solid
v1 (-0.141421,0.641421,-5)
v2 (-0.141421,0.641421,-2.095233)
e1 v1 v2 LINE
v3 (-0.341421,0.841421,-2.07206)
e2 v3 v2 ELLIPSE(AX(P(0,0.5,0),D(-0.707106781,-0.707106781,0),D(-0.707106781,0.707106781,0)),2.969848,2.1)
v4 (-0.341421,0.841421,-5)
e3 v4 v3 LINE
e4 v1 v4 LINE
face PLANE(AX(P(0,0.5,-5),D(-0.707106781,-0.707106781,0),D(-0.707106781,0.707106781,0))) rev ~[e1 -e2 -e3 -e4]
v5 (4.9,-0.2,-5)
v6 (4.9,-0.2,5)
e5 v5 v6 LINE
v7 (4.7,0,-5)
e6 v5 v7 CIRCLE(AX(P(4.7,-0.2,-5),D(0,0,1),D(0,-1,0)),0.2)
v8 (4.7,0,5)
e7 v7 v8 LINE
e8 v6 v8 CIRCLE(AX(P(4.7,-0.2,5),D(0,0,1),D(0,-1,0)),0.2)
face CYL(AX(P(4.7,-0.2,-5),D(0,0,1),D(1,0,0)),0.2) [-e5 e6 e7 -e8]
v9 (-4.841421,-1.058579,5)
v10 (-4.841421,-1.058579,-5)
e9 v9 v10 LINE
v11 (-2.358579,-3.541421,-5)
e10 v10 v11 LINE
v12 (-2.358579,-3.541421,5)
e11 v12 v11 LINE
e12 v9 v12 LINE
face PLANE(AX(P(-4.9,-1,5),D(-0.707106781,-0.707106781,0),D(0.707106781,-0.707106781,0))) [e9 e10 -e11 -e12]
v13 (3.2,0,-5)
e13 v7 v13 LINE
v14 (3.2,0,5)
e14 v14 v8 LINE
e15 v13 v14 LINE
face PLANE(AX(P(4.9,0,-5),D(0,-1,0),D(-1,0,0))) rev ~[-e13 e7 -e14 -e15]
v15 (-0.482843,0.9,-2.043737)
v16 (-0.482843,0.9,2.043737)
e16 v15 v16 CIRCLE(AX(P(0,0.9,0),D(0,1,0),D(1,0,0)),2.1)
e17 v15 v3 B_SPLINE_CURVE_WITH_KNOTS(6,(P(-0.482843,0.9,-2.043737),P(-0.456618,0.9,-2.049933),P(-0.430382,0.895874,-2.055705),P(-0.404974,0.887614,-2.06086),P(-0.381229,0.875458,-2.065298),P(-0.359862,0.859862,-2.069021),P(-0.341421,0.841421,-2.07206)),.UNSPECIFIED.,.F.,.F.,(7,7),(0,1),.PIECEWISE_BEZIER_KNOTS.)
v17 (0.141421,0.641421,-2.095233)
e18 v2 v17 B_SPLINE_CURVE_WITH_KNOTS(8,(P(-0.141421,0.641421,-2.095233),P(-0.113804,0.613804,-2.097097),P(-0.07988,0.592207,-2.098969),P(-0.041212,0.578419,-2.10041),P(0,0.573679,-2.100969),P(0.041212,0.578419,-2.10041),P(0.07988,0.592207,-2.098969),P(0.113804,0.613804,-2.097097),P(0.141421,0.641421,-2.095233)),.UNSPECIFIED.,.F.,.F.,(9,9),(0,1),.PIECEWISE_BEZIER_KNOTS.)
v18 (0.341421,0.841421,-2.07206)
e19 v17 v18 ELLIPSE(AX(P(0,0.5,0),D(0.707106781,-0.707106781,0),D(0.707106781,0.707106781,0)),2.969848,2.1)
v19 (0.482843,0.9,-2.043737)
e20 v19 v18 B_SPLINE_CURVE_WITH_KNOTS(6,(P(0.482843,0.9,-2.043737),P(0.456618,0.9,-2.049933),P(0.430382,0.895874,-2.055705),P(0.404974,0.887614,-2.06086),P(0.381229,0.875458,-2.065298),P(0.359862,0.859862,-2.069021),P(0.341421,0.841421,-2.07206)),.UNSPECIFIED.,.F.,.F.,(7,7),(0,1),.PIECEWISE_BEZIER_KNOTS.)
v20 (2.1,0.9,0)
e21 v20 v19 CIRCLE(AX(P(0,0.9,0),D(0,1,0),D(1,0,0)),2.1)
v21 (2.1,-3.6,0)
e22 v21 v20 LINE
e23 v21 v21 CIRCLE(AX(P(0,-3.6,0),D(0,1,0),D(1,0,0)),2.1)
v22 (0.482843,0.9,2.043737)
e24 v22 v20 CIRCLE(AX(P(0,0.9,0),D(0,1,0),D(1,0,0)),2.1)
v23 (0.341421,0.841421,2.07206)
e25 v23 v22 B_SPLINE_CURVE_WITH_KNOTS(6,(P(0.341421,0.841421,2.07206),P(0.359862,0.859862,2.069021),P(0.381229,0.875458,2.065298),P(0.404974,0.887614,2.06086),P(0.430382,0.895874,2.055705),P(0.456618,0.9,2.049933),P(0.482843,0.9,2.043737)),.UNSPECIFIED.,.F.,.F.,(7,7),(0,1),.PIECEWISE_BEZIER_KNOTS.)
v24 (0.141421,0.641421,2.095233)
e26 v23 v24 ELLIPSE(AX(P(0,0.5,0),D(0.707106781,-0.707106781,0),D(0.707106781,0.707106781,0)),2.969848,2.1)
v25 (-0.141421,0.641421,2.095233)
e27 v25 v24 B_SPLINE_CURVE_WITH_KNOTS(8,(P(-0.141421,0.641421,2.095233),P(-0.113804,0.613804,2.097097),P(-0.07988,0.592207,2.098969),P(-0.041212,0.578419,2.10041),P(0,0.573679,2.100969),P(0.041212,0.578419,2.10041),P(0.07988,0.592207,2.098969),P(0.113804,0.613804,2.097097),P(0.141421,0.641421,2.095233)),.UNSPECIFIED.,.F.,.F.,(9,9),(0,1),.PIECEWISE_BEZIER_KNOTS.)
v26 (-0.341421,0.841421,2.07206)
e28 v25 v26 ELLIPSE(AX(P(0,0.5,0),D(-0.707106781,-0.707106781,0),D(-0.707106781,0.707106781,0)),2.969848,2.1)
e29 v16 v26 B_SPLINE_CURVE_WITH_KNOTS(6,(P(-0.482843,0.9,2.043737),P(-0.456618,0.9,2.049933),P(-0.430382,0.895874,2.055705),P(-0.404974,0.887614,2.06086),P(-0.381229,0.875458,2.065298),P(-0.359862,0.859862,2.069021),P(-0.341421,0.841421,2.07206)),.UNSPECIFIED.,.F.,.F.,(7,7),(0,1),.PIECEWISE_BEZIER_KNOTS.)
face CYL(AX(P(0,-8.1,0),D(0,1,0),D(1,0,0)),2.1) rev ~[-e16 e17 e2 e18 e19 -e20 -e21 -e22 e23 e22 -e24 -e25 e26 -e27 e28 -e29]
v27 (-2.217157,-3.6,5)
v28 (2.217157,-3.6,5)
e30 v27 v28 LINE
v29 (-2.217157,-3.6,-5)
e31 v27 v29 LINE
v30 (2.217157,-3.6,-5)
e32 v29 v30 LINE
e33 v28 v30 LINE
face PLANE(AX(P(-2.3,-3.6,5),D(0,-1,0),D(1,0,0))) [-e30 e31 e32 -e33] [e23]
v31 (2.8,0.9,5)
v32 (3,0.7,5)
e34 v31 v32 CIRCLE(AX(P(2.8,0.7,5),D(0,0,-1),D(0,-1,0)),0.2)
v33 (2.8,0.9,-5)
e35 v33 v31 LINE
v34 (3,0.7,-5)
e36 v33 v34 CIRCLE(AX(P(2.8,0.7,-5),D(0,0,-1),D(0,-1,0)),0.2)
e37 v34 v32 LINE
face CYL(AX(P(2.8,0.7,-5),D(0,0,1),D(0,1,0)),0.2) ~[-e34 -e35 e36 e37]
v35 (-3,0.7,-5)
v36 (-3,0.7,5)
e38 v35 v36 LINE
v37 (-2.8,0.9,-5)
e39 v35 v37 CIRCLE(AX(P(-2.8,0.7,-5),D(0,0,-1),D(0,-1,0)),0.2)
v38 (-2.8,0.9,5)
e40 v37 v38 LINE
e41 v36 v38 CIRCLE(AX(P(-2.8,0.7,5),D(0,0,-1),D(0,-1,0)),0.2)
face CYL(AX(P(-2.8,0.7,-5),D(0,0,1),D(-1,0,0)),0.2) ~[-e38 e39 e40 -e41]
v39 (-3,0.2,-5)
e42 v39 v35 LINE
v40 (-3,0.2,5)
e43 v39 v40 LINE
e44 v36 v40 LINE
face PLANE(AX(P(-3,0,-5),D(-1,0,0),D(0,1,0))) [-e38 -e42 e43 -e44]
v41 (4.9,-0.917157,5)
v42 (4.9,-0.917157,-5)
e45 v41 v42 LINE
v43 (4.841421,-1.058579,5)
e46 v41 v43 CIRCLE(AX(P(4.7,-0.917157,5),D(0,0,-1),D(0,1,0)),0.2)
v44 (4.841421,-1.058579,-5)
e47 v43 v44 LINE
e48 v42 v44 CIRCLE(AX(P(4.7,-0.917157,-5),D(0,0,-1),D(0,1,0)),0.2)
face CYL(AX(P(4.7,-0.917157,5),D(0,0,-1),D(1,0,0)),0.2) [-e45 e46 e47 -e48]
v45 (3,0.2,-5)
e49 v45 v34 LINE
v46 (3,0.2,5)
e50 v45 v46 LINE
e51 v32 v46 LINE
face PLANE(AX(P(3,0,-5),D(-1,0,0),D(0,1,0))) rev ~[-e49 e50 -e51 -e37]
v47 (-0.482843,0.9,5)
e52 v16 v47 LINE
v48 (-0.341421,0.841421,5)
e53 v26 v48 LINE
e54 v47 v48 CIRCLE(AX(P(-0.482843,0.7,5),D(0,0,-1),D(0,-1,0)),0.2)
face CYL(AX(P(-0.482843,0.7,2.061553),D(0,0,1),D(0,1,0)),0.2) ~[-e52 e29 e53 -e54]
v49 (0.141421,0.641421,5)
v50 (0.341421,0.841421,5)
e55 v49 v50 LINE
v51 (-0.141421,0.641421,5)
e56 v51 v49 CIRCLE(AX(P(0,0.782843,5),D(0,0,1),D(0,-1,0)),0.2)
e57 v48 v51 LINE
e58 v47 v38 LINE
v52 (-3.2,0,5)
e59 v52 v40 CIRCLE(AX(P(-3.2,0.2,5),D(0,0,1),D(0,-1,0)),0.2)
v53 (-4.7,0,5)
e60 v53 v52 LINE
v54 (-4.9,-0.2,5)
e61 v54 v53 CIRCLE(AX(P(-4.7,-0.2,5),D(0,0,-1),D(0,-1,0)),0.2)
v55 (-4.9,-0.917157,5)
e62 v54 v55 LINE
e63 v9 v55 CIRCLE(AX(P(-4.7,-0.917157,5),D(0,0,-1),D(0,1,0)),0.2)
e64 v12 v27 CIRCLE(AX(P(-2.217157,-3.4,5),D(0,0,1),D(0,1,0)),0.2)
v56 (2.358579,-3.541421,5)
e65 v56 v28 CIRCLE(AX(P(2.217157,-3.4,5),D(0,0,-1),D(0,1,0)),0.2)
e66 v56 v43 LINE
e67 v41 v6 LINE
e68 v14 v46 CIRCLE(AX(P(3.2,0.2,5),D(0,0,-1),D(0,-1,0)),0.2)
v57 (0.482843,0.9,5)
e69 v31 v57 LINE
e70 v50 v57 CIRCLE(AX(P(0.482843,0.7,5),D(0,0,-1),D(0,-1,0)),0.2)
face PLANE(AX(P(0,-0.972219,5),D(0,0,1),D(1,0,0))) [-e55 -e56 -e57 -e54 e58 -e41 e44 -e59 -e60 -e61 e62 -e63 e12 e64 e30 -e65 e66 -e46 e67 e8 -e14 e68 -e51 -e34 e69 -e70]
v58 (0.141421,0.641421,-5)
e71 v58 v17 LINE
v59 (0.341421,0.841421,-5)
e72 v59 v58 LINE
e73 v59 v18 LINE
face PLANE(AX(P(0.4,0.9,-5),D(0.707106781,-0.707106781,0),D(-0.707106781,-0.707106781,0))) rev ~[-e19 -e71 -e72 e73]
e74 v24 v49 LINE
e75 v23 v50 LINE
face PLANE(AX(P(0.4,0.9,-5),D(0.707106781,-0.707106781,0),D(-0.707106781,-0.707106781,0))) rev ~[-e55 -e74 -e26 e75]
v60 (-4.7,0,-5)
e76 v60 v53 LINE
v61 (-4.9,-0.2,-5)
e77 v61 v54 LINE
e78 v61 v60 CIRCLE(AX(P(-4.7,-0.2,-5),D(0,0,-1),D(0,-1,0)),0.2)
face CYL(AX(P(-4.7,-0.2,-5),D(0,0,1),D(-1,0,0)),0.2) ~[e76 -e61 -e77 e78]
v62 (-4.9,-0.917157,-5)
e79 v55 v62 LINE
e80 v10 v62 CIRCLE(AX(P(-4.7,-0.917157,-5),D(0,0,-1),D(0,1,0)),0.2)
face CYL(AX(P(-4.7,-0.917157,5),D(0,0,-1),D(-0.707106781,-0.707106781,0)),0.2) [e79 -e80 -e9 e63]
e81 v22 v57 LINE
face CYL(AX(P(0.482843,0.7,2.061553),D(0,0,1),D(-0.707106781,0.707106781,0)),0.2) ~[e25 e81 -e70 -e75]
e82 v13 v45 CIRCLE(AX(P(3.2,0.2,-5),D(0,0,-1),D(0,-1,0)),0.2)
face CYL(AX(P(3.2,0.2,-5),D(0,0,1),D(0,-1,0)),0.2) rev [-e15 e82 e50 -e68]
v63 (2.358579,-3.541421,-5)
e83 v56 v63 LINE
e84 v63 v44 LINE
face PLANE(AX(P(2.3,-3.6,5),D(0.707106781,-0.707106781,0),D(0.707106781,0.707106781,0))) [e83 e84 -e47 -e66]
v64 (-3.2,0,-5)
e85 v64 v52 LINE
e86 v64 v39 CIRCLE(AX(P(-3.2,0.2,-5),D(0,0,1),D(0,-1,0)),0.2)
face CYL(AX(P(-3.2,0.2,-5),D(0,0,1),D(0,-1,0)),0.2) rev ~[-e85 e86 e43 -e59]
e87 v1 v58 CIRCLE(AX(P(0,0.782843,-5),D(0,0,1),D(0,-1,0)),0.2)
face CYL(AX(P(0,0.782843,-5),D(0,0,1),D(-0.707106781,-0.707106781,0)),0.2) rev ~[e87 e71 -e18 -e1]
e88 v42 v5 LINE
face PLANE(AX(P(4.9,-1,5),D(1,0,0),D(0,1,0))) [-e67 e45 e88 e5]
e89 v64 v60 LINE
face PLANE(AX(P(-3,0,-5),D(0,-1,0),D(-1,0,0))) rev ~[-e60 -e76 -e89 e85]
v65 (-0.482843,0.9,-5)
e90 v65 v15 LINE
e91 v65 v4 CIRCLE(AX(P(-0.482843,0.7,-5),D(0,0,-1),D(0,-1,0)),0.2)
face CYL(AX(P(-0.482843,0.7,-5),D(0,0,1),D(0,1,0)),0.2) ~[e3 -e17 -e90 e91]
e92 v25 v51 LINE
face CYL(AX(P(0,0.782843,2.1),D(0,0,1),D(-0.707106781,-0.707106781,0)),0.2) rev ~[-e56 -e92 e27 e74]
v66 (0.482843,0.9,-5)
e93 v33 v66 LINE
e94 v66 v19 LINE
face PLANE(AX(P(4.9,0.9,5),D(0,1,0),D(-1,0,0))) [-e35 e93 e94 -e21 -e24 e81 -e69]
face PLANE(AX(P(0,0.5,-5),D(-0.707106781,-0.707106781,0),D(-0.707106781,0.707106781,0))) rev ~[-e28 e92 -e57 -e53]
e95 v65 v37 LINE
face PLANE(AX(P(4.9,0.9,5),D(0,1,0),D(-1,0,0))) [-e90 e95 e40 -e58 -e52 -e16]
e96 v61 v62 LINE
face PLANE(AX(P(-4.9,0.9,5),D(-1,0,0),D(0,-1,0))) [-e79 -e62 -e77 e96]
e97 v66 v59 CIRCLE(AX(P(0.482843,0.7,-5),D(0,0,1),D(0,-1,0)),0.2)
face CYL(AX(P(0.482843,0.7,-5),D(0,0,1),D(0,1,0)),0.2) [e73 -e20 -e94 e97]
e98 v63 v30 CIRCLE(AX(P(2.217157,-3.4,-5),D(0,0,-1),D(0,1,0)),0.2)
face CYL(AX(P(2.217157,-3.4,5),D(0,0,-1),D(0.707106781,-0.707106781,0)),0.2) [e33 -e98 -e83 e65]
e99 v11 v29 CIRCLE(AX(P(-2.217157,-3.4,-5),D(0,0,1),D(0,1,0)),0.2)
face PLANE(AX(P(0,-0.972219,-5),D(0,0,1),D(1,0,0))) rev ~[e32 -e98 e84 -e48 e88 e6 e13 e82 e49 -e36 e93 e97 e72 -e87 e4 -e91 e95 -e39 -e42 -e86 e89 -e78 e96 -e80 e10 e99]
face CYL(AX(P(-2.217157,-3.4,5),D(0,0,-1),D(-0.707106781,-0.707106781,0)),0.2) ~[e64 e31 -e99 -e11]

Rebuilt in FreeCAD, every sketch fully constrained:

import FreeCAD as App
import Part
import Sketcher
from FreeCAD import Vector
Q = App.Units.Quantity


def edges_at(feature, points):
    """Names of the edges that pass closest to the given points."""
    edges = feature.Shape.Edges
    near = lambda p: min(range(len(edges)), key=lambda i: edges[i].distToShape(Part.Vertex(*p))[0])
    return sorted({f"Edge{near(p) + 1}" for p in points})


def add_polygon(sketch, points):
    """Adds a closed chain of lines whose ends are joined by coincident constraints."""
    first, n = sketch.GeometryCount, len(points)
    for a, b in zip(points, points[1:] + points[:1]):
        sketch.addGeometry(Part.LineSegment(App.Vector(*a, 0), App.Vector(*b, 0)), False)
    for i in range(n):
        sketch.addConstraint(Sketcher.Constraint("Coincident", first + i, 2, first + (i + 1) % n, 1))

doc = App.newDocument("Part")
params = doc.addObject("Spreadsheet::Sheet", "Params")
for row, (alias, value) in enumerate([
    ("sketch1_width", "9.8 mm"),
    ("sketch1_width2", "4.6 mm"),
    ("sketch1_height", "1.9 mm"),
    ("pad1_length", "10 mm"),
    ("sketch2_width", "1.9 mm"),
    ("sketch2_height", "0.9 mm"),
    ("sketch3_width", "1.9 mm"),
    ("sketch3_height", "0.9 mm"),
    ("sketch4_width", "0.8 mm"),
    ("sketch5_diameter", "4.2 mm"),
    ("hole_diameter", "4.2 mm"),
    ("hole_depth", "4.5 mm"),
    ("fillet_radius", "0.2 mm"),
], start=1):
    params.set(f"A{row}", alias)
    params.set(f"B{row}", "=" + value)
    params.setAlias(f"B{row}", alias)

body = doc.addObject("PartDesign::Body", "Body")

sketch1 = body.newObject("Sketcher::SketchObject", "Sketch")
sketch1.AttachmentSupport = (doc.getObject("XY_Plane"), [""])
sketch1.MapMode = "FlatFace"
sketch1.AttachmentOffset = App.Placement(Vector(0, 0, 5), App.Rotation())
add_polygon(sketch1, [(4.9, -1), (4.9, 0.9), (-4.9, 0.9), (-4.9, -1), (-2.3, -3.6), (2.3, -3.6)])
sketch1.addConstraint([
    Sketcher.Constraint("Vertical", 0),
    Sketcher.Constraint("Horizontal", 1),
    Sketcher.Constraint("Vertical", 2),
    Sketcher.Constraint("Horizontal", 4),
    Sketcher.Constraint("Symmetric", 2, 2, 5, 2, -2),
    Sketcher.Constraint("Perpendicular", 3, 5),
    Sketcher.Constraint("Equal", 3, 5),
    Sketcher.Constraint("DistanceX", 1, 2, 1, 1, Q("9.8 mm")),
    Sketcher.Constraint("DistanceX", 4, 1, 4, 2, Q("4.6 mm")),
    Sketcher.Constraint("DistanceY", 0, 1, 0, 2, Q("1.9 mm")),
    Sketcher.Constraint("DistanceY", 2, 2, -1, 1, Q("1 mm")),
])
sketch1.setExpression("Constraints[13]", "Params.sketch1_width")
sketch1.setExpression("Constraints[14]", "Params.sketch1_width2")
sketch1.setExpression("Constraints[15]", "Params.sketch1_height")
pad1 = body.newObject("PartDesign::Pad", "Pad")
pad1.Profile = sketch1
pad1.setExpression("Length", "Params.pad1_length")
pad1.Reversed = True

sketch2 = body.newObject("Sketcher::SketchObject", "Sketch001")
sketch2.AttachmentSupport = (doc.getObject("XY_Plane"), [""])
sketch2.MapMode = "FlatFace"
sketch2.AttachmentOffset = App.Placement(Vector(0, 0, -5), App.Rotation())
add_polygon(sketch2, [(-3, 0.9), (-3, 0), (-4.9, 0), (-4.9, 0.9)])
sketch2.addConstraint([
    Sketcher.Constraint("Vertical", 0),
    Sketcher.Constraint("Horizontal", 1),
    Sketcher.Constraint("Vertical", 2),
    Sketcher.Constraint("Horizontal", 3),
    Sketcher.Constraint("PointOnObject", 0, 2, -1),
    Sketcher.Constraint("DistanceX", 1, 2, 1, 1, Q("1.9 mm")),
    Sketcher.Constraint("DistanceY", 0, 2, 0, 1, Q("0.9 mm")),
    Sketcher.Constraint("DistanceX", 0, 2, -1, 1, Q("3 mm")),
])
sketch2.setExpression("Constraints[9]", "Params.sketch2_width")
sketch2.setExpression("Constraints[10]", "Params.sketch2_height")
pocket1 = body.newObject("PartDesign::Pocket", "Pocket")
pocket1.Profile = sketch2
pocket1.Type = "ThroughAll"
pocket1.Reversed = True

sketch3 = body.newObject("Sketcher::SketchObject", "Sketch002")
sketch3.AttachmentSupport = (doc.getObject("XY_Plane"), [""])
sketch3.MapMode = "FlatFace"
sketch3.AttachmentOffset = App.Placement(Vector(0, 0, -5), App.Rotation())
add_polygon(sketch3, [(4.9, 0.9), (4.9, 0), (3, 0), (3, 0.9)])
sketch3.addConstraint([
    Sketcher.Constraint("Vertical", 0),
    Sketcher.Constraint("Horizontal", 1),
    Sketcher.Constraint("Vertical", 2),
    Sketcher.Constraint("Horizontal", 3),
    Sketcher.Constraint("PointOnObject", 0, 2, -1),
    Sketcher.Constraint("DistanceX", 1, 2, 1, 1, Q("1.9 mm")),
    Sketcher.Constraint("DistanceY", 0, 2, 0, 1, Q("0.9 mm")),
    Sketcher.Constraint("DistanceX", -1, 1, 1, 2, Q("3 mm")),
])
sketch3.setExpression("Constraints[9]", "Params.sketch3_width")
sketch3.setExpression("Constraints[10]", "Params.sketch3_height")
pocket2 = body.newObject("PartDesign::Pocket", "Pocket001")
pocket2.Profile = sketch3
pocket2.Type = "ThroughAll"
pocket2.Reversed = True

sketch4 = body.newObject("Sketcher::SketchObject", "Sketch003")
sketch4.AttachmentSupport = (doc.getObject("XY_Plane"), [""])
sketch4.MapMode = "FlatFace"
sketch4.AttachmentOffset = App.Placement(Vector(0, 0, -5), App.Rotation())
add_polygon(sketch4, [(-0.4, 0.9), (0.4, 0.9), (0, 0.5)])
sketch4.addConstraint([
    Sketcher.Constraint("Horizontal", 0),
    Sketcher.Constraint("PointOnObject", 1, 2, -2),
    Sketcher.Constraint("Perpendicular", 1, 2),
    Sketcher.Constraint("Equal", 1, 2),
    Sketcher.Constraint("DistanceX", 0, 1, 0, 2, Q("0.8 mm")),
    Sketcher.Constraint("DistanceY", -1, 1, 0, 2, Q("0.9 mm")),
])
sketch4.setExpression("Constraints[7]", "Params.sketch4_width")
pocket3 = body.newObject("PartDesign::Pocket", "Pocket002")
pocket3.Profile = sketch4
pocket3.Type = "ThroughAll"
pocket3.Reversed = True

sketch5 = body.newObject("Sketcher::SketchObject", "Sketch004")
sketch5.AttachmentSupport = (doc.getObject("XZ_Plane"), [""])
sketch5.MapMode = "FlatFace"
sketch5.AttachmentOffset = App.Placement(Vector(0, 0, 3.6), App.Rotation())
sketch5.addGeometry(Part.Circle(Vector(0, 0, 0), Vector(0, 0, 1), 2.1), False)
sketch5.addConstraint([
    Sketcher.Constraint("Coincident", 0, 3, -1, 1),
    Sketcher.Constraint("Diameter", 0, Q("4.2 mm")),
])
sketch5.setExpression("Constraints[1]", "Params.sketch5_diameter")
doc.recompute()
hole = body.newObject("PartDesign::Hole", "Hole")
hole.Profile = sketch5
hole.ThreadType = "None"
hole.setExpression("Diameter", "Params.hole_diameter")
hole.DepthType = "Dimension"
hole.setExpression("Depth", "Params.hole_depth")
hole.DrillPoint = "Flat"
doc.recompute()

fillet = body.newObject("PartDesign::Fillet", "Fillet")
fillet.Base = (hole, edges_at(hole, [
    (4.9, 0, 0),
    (3, 0, 0),
    (-4.9, -1, 0),
    (3, 0.9, 0),
    (-3, 0, 0),
    (0.4, 0.9, -3.531),
    (0, 0.5, 3.55),
    (-0.4, 0.9, -3.531),
    (4.9, -1, 0),
    (-3, 0.9, 0),
    (0, 0.5, -3.55),
    (-0.4, 0.9, 3.531),
    (-4.9, 0, 0),
    (-2.3, -3.6, 0),
    (0.4, 0.9, 3.531),
    (2.3, -3.6, 0),
]))
fillet.setExpression("Radius", "Params.fillet_radius")

doc.recompute()
